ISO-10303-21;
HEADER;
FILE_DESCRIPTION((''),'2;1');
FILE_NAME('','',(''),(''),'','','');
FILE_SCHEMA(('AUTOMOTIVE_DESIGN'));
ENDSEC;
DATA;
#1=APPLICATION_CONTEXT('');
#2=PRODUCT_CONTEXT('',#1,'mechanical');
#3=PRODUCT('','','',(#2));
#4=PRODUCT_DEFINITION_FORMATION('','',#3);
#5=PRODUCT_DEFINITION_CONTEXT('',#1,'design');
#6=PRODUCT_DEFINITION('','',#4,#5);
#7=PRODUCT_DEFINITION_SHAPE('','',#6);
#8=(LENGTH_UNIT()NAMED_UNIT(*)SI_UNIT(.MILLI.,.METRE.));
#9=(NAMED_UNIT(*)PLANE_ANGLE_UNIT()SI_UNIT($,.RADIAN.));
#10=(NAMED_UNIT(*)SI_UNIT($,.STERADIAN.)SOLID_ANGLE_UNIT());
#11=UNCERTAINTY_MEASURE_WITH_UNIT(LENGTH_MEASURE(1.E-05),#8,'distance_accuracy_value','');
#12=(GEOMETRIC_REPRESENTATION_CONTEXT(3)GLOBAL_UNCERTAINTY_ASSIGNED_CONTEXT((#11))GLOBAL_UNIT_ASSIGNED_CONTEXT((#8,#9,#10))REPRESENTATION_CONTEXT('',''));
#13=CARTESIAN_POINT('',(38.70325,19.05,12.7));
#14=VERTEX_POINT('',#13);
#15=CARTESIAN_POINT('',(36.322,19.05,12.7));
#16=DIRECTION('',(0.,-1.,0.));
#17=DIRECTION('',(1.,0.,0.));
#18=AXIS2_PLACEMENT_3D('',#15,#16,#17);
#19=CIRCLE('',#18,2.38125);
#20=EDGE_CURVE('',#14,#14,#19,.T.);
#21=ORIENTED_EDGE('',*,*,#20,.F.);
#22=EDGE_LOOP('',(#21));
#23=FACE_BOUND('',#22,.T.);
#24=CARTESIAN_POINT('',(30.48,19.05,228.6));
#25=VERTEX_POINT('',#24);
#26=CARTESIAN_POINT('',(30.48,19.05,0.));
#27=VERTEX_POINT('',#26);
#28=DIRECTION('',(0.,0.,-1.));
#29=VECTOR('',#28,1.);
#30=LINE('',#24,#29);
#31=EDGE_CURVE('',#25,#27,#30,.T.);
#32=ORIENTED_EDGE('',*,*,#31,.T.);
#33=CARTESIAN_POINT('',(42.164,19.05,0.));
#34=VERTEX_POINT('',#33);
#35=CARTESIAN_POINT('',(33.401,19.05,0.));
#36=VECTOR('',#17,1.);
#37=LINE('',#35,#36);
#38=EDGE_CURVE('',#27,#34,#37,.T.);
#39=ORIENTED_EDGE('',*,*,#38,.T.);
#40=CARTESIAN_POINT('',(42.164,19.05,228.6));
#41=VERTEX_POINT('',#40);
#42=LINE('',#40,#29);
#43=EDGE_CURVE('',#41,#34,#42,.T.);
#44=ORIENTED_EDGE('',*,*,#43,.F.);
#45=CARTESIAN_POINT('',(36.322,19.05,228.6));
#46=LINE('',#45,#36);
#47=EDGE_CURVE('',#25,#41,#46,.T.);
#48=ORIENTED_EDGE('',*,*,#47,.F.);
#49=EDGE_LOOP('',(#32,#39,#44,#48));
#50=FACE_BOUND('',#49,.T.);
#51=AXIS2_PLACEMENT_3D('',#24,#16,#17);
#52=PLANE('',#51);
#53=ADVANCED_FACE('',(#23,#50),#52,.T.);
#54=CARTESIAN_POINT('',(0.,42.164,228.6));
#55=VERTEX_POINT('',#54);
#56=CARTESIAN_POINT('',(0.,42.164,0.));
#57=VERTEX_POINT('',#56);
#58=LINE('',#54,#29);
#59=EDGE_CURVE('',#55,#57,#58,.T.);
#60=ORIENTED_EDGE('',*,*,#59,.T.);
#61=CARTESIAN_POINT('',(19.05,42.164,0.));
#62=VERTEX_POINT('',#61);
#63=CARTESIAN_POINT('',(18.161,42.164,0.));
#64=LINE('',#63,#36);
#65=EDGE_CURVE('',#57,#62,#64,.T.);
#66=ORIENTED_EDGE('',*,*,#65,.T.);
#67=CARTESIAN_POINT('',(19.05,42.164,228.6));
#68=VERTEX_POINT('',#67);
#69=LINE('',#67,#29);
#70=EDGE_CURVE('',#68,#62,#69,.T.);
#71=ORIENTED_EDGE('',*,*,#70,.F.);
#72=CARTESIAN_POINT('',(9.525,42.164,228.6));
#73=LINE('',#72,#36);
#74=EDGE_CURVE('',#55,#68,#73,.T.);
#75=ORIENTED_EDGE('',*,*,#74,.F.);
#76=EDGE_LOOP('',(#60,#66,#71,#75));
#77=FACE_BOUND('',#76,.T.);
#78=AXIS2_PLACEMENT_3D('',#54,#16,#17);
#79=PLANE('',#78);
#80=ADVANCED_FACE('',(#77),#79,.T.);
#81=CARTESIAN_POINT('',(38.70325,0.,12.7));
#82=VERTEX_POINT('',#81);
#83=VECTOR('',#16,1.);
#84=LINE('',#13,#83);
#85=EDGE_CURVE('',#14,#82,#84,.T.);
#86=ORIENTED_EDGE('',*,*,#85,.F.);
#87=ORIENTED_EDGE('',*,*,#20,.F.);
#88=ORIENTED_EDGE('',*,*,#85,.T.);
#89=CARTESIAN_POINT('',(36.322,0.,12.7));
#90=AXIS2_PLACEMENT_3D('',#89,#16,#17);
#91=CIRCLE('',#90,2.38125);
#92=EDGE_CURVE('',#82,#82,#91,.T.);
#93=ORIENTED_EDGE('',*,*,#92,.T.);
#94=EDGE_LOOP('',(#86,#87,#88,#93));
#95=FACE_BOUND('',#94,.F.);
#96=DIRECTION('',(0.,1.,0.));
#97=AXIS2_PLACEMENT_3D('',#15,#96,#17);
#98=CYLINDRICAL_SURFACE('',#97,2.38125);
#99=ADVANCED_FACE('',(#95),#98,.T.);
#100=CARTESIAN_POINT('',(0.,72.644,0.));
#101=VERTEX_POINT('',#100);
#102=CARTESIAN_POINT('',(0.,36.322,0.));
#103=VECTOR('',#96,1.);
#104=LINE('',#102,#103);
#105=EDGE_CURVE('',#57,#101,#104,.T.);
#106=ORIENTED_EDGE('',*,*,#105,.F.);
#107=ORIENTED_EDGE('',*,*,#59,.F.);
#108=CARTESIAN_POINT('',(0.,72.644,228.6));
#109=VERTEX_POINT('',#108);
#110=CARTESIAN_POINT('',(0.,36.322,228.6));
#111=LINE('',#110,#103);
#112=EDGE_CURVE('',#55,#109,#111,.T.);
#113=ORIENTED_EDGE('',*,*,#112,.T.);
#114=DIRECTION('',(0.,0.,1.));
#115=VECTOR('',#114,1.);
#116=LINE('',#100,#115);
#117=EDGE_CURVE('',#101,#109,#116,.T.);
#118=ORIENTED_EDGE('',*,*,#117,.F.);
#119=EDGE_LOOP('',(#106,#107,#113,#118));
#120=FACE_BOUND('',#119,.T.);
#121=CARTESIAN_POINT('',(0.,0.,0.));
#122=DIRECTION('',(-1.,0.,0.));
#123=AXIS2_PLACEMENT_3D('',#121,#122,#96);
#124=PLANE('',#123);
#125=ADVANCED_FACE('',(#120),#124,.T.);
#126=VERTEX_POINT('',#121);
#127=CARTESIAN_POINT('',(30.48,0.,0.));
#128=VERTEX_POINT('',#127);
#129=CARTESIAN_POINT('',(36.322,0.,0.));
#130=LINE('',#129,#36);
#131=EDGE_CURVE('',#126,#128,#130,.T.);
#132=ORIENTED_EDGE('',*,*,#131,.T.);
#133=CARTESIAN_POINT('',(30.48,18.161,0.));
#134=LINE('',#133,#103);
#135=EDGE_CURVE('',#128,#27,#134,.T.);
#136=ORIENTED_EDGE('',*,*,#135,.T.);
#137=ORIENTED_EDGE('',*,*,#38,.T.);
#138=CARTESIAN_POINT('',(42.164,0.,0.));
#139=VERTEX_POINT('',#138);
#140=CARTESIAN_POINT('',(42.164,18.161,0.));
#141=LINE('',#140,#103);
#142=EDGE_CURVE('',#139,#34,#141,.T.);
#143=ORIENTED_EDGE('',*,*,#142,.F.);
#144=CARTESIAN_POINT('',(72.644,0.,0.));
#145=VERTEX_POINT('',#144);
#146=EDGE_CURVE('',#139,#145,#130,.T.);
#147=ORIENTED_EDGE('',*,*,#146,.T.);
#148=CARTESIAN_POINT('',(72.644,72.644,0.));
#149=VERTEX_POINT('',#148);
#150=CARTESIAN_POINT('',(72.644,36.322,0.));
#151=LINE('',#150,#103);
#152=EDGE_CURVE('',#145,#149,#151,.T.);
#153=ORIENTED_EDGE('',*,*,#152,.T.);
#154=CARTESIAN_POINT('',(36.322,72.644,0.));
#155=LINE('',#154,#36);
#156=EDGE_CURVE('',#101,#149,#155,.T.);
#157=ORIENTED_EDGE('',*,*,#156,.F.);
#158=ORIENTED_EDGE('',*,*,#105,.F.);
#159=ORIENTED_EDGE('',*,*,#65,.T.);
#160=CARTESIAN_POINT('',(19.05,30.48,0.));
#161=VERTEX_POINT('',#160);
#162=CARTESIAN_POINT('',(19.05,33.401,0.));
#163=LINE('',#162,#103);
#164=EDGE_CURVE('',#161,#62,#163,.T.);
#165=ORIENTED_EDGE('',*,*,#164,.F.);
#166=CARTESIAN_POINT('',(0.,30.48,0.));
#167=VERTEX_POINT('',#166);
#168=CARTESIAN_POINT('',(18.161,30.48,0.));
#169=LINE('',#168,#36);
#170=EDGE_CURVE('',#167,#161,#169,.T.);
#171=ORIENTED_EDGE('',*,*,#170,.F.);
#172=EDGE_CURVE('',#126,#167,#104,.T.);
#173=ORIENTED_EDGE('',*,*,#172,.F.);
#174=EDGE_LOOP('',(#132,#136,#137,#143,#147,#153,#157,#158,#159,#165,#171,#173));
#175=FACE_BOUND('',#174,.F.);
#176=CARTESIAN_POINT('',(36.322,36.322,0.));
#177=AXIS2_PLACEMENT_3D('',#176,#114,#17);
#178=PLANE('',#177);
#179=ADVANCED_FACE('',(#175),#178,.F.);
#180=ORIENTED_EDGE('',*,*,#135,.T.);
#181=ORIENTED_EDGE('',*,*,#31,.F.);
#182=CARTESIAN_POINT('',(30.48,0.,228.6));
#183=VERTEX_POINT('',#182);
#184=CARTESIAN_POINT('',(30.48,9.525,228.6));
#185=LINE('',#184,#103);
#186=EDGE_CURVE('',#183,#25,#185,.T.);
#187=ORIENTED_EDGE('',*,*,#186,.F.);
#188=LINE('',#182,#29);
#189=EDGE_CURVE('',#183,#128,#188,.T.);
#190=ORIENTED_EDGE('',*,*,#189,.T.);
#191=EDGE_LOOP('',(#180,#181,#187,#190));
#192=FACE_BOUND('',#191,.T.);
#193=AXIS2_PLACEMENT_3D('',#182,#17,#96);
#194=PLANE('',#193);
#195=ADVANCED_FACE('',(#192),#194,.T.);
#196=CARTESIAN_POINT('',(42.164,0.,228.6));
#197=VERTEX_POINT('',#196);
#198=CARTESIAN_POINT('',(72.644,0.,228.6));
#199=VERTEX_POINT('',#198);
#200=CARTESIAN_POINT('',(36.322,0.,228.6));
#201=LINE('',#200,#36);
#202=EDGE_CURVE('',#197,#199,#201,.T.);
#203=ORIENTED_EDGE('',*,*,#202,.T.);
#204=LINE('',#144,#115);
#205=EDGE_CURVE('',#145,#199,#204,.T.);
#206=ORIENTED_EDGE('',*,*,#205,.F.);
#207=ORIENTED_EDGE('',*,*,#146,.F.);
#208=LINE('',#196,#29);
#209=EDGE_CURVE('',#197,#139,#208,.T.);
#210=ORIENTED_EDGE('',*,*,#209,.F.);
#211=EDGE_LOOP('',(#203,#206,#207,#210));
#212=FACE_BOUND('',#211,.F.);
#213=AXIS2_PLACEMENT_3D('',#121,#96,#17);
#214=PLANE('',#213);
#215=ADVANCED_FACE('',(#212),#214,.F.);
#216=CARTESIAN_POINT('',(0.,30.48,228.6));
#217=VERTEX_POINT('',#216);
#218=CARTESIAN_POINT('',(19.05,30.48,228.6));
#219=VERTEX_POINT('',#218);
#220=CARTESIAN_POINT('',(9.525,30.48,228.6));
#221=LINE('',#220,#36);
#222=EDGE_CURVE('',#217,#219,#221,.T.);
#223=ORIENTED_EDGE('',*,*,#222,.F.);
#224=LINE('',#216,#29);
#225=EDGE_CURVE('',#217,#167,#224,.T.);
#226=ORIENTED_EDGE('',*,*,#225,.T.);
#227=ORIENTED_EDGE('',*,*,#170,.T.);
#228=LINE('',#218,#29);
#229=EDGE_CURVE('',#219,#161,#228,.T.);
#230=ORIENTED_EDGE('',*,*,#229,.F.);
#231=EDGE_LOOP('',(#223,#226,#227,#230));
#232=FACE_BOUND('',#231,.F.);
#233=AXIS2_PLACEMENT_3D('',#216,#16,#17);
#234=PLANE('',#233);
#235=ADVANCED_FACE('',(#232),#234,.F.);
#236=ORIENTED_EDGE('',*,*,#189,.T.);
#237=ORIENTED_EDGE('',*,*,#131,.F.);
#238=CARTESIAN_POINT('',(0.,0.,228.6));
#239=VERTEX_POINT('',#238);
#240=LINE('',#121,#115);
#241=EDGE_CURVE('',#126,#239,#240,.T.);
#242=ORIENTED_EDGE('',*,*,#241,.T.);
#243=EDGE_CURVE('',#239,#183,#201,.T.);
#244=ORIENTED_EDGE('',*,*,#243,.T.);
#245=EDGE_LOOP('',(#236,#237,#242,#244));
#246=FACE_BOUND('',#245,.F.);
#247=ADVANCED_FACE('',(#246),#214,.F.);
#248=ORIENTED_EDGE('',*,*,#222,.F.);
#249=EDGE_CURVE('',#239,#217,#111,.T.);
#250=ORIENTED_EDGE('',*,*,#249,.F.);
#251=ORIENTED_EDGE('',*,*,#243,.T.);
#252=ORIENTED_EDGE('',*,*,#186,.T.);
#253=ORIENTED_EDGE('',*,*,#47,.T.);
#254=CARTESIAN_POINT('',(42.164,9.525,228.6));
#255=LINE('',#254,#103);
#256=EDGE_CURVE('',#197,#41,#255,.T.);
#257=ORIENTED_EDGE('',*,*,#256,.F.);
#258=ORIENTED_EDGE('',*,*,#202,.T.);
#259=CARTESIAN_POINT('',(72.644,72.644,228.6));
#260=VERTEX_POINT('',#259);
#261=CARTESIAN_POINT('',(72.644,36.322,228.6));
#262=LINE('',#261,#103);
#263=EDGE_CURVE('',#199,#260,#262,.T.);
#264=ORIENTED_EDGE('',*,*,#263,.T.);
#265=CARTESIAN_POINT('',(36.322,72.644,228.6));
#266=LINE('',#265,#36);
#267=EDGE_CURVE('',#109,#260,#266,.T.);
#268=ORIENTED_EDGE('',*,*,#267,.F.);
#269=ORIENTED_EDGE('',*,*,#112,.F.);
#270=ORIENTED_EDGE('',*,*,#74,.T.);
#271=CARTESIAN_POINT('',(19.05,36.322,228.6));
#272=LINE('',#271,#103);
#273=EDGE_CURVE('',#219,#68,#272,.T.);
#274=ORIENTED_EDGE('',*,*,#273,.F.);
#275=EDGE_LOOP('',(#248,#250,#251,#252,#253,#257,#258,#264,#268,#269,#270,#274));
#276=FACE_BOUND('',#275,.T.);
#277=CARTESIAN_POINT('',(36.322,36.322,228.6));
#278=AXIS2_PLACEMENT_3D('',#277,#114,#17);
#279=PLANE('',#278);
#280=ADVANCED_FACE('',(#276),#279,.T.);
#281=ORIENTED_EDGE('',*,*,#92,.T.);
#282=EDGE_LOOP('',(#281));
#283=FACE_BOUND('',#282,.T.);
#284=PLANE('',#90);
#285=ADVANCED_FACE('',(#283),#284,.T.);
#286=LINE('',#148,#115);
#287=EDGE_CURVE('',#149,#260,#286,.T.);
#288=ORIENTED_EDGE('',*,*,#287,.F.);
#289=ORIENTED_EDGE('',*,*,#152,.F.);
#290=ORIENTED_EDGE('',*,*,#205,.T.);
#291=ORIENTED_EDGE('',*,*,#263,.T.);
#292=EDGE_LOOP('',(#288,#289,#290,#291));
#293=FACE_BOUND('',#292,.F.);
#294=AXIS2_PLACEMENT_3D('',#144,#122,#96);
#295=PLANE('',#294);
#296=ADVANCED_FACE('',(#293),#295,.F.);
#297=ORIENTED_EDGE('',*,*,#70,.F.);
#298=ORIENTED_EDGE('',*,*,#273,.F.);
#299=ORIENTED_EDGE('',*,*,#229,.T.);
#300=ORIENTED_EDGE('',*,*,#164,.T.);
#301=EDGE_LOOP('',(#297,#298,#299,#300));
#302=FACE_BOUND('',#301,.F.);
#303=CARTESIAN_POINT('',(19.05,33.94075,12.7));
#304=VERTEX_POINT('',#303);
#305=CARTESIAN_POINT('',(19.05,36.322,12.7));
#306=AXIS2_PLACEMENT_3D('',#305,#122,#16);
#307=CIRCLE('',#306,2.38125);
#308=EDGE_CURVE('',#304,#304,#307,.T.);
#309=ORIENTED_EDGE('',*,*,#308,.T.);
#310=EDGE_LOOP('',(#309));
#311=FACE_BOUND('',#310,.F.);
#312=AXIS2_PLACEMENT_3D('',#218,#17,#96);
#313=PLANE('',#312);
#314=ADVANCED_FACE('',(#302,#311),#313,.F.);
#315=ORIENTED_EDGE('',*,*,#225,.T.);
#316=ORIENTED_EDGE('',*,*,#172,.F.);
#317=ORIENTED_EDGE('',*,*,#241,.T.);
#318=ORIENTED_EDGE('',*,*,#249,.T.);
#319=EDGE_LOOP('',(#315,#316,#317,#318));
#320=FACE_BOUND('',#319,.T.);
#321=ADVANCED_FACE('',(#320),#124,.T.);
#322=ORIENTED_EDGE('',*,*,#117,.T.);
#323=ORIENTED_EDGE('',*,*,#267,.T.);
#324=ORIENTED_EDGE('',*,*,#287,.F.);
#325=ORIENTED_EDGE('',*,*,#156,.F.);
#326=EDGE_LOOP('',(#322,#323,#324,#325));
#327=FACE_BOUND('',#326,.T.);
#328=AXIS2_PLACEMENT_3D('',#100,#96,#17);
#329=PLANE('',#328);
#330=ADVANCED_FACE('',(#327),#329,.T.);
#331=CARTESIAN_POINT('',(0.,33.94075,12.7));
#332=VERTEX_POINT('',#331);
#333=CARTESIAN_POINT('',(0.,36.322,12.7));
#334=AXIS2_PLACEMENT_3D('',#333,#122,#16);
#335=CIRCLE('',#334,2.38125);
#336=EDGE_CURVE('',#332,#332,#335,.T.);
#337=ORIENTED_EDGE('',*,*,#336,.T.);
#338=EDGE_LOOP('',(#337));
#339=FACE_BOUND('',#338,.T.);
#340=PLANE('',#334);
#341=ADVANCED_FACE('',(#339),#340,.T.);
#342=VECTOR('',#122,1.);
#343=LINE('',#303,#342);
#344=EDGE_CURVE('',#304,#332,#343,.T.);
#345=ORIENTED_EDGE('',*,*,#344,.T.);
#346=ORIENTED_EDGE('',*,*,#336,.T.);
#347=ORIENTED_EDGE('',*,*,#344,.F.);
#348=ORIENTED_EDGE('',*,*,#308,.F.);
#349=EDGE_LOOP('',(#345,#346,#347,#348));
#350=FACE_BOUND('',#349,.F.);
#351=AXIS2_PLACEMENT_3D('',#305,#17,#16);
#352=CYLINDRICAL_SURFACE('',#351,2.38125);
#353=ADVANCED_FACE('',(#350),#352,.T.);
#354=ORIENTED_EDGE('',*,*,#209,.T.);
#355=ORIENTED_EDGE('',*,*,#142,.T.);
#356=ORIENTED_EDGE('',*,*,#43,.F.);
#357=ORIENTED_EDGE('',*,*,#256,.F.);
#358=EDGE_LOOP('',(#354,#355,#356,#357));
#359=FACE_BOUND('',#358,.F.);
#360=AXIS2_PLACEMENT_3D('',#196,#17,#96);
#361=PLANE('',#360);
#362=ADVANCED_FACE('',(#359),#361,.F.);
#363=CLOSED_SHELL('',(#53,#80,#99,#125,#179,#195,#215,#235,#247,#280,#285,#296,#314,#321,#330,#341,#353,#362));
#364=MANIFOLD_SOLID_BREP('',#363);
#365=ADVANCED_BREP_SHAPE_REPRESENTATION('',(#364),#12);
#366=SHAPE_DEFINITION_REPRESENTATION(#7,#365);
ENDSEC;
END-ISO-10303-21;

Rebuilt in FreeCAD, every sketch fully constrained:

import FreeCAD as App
import Part
import Sketcher

V = App.Vector
Q = App.Units.Quantity


def add_polygon(sketch, points):
    """Adds a closed chain of lines whose ends are joined by coincident constraints."""
    first, n = sketch.GeometryCount, len(points)
    for a, b in zip(points, points[1:] + points[:1]):
        sketch.addGeometry(Part.LineSegment(App.Vector(*a, 0), App.Vector(*b, 0)), False)
    for i in range(n):
        sketch.addConstraint(Sketcher.Constraint("Coincident", first + i, 2, first + (i + 1) % n, 1))

doc = App.newDocument("Part")
body = doc.addObject("PartDesign::Body", "Body")

# Sketch on XY plane
sketch1 = body.newObject("Sketcher::SketchObject", "Sketch")
sketch1.AttachmentSupport = (doc.getObject("XY_Plane"), [""])
sketch1.MapMode = "FlatFace"
add_polygon(sketch1, [(0, 72.644), (0, 0), (72.644, 0), (72.644, 72.644)])  # lines 0-3
sketch1.addConstraint(Sketcher.Constraint("Vertical", 0))
sketch1.addConstraint(Sketcher.Constraint("Horizontal", 1))
sketch1.addConstraint(Sketcher.Constraint("Vertical", 2))
sketch1.addConstraint(Sketcher.Constraint("Horizontal", 3))
sketch1.addConstraint(Sketcher.Constraint("Coincident", 0, 2, -1, 1))
sketch1.addConstraint(Sketcher.Constraint("Equal", 3, 0))
sketch1.addConstraint(Sketcher.Constraint("DistanceX", 1, 1, 1, 2, Q("2.86 in")))
pad1 = body.newObject("PartDesign::Pad", "Pad")
pad1.Profile = sketch1
pad1.Length = Q("9 in")

# Sketch on XY plane
sketch2 = body.newObject("Sketcher::SketchObject", "Sketch001")
sketch2.AttachmentSupport = (doc.getObject("XY_Plane"), [""])
sketch2.MapMode = "FlatFace"
sketch2.AttachmentOffset = App.Placement(V(0, 0, 9 * 25.4), App.Rotation())
add_polygon(sketch2, [(0, 42.164), (0, 30.48), (19.05, 30.48), (19.05, 42.164)])  # lines 0-3
add_polygon(sketch2, [(30.48, 19.05), (30.48, 0), (42.164, 0), (42.164, 19.05)])  # lines 4-7
sketch2.addConstraint(Sketcher.Constraint("Vertical", 0))
sketch2.addConstraint(Sketcher.Constraint("Horizontal", 1))
sketch2.addConstraint(Sketcher.Constraint("Vertical", 2))
sketch2.addConstraint(Sketcher.Constraint("Horizontal", 3))
sketch2.addConstraint(Sketcher.Constraint("Vertical", 4))
sketch2.addConstraint(Sketcher.Constraint("Horizontal", 5))
sketch2.addConstraint(Sketcher.Constraint("Vertical", 6))
sketch2.addConstraint(Sketcher.Constraint("Horizontal", 7))
sketch2.addConstraint(Sketcher.Constraint("PointOnObject", 0, 2, -2))
sketch2.addConstraint(Sketcher.Constraint("PointOnObject", 4, 2, -1))
sketch2.addConstraint(Sketcher.Constraint("Equal", 7, 0))
sketch2.addConstraint(Sketcher.Constraint("Equal", 3, 4))
sketch2.addConstraint(Sketcher.Constraint("DistanceX", 1, 1, 1, 2, Q("0.75 in")))
sketch2.addConstraint(Sketcher.Constraint("DistanceX", 5, 1, 5, 2, Q("0.46 in")))
sketch2.addConstraint(Sketcher.Constraint("DistanceY", -1, 1, 0, 2, Q("1.2 in")))
sketch2.addConstraint(Sketcher.Constraint("DistanceX", -1, 1, 4, 2, Q("1.2 in")))
pocket1 = body.newObject("PartDesign::Pocket", "Pocket")
pocket1.Profile = sketch2
pocket1.Type = "ThroughAll"

# Sketch on XZ plane
sketch3 = body.newObject("Sketcher::SketchObject", "Sketch002")
sketch3.AttachmentSupport = (doc.getObject("XZ_Plane"), [""])
sketch3.MapMode = "FlatFace"
sketch3.AttachmentOffset = App.Placement(V(0, 0, -0.75 * 25.4), App.Rotation())
sketch3.addGeometry(Part.Circle(V(36.322, 12.7, 0), V(0, 0, 1), 2.38125), False)
sketch3.addConstraint(Sketcher.Constraint("Diameter", 0, Q("0.1875 in")))
sketch3.addConstraint(Sketcher.Constraint("DistanceY", -1, 1, 0, 3, Q("0.5 in")))
sketch3.addConstraint(Sketcher.Constraint("DistanceX", -1, 1, 0, 3, Q("1.43 in")))
pad2 = body.newObject("PartDesign::Pad", "Pad001")
pad2.Profile = sketch3
pad2.Length = Q("0.75 in")

# Sketch on YZ plane
sketch4 = body.newObject("Sketcher::SketchObject", "Sketch003")
sketch4.AttachmentSupport = (doc.getObject("YZ_Plane"), [""])
sketch4.MapMode = "FlatFace"
sketch4.AttachmentOffset = App.Placement(V(0, 0, 0.75 * 25.4), App.Rotation())
sketch4.addGeometry(Part.Circle(V(36.322, 12.7, 0), V(0, 0, 1), 2.38125), False)
sketch4.addConstraint(Sketcher.Constraint("Diameter", 0, Q("0.1875 in")))
sketch4.addConstraint(Sketcher.Constraint("DistanceY", -1, 1, 0, 3, Q("0.5 in")))
sketch4.addConstraint(Sketcher.Constraint("DistanceX", -1, 1, 0, 3, Q("1.43 in")))
pad3 = body.newObject("PartDesign::Pad", "Pad002")
pad3.Profile = sketch4
pad3.Length = Q("0.75 in")
pad3.Reversed = True

doc.recompute()
